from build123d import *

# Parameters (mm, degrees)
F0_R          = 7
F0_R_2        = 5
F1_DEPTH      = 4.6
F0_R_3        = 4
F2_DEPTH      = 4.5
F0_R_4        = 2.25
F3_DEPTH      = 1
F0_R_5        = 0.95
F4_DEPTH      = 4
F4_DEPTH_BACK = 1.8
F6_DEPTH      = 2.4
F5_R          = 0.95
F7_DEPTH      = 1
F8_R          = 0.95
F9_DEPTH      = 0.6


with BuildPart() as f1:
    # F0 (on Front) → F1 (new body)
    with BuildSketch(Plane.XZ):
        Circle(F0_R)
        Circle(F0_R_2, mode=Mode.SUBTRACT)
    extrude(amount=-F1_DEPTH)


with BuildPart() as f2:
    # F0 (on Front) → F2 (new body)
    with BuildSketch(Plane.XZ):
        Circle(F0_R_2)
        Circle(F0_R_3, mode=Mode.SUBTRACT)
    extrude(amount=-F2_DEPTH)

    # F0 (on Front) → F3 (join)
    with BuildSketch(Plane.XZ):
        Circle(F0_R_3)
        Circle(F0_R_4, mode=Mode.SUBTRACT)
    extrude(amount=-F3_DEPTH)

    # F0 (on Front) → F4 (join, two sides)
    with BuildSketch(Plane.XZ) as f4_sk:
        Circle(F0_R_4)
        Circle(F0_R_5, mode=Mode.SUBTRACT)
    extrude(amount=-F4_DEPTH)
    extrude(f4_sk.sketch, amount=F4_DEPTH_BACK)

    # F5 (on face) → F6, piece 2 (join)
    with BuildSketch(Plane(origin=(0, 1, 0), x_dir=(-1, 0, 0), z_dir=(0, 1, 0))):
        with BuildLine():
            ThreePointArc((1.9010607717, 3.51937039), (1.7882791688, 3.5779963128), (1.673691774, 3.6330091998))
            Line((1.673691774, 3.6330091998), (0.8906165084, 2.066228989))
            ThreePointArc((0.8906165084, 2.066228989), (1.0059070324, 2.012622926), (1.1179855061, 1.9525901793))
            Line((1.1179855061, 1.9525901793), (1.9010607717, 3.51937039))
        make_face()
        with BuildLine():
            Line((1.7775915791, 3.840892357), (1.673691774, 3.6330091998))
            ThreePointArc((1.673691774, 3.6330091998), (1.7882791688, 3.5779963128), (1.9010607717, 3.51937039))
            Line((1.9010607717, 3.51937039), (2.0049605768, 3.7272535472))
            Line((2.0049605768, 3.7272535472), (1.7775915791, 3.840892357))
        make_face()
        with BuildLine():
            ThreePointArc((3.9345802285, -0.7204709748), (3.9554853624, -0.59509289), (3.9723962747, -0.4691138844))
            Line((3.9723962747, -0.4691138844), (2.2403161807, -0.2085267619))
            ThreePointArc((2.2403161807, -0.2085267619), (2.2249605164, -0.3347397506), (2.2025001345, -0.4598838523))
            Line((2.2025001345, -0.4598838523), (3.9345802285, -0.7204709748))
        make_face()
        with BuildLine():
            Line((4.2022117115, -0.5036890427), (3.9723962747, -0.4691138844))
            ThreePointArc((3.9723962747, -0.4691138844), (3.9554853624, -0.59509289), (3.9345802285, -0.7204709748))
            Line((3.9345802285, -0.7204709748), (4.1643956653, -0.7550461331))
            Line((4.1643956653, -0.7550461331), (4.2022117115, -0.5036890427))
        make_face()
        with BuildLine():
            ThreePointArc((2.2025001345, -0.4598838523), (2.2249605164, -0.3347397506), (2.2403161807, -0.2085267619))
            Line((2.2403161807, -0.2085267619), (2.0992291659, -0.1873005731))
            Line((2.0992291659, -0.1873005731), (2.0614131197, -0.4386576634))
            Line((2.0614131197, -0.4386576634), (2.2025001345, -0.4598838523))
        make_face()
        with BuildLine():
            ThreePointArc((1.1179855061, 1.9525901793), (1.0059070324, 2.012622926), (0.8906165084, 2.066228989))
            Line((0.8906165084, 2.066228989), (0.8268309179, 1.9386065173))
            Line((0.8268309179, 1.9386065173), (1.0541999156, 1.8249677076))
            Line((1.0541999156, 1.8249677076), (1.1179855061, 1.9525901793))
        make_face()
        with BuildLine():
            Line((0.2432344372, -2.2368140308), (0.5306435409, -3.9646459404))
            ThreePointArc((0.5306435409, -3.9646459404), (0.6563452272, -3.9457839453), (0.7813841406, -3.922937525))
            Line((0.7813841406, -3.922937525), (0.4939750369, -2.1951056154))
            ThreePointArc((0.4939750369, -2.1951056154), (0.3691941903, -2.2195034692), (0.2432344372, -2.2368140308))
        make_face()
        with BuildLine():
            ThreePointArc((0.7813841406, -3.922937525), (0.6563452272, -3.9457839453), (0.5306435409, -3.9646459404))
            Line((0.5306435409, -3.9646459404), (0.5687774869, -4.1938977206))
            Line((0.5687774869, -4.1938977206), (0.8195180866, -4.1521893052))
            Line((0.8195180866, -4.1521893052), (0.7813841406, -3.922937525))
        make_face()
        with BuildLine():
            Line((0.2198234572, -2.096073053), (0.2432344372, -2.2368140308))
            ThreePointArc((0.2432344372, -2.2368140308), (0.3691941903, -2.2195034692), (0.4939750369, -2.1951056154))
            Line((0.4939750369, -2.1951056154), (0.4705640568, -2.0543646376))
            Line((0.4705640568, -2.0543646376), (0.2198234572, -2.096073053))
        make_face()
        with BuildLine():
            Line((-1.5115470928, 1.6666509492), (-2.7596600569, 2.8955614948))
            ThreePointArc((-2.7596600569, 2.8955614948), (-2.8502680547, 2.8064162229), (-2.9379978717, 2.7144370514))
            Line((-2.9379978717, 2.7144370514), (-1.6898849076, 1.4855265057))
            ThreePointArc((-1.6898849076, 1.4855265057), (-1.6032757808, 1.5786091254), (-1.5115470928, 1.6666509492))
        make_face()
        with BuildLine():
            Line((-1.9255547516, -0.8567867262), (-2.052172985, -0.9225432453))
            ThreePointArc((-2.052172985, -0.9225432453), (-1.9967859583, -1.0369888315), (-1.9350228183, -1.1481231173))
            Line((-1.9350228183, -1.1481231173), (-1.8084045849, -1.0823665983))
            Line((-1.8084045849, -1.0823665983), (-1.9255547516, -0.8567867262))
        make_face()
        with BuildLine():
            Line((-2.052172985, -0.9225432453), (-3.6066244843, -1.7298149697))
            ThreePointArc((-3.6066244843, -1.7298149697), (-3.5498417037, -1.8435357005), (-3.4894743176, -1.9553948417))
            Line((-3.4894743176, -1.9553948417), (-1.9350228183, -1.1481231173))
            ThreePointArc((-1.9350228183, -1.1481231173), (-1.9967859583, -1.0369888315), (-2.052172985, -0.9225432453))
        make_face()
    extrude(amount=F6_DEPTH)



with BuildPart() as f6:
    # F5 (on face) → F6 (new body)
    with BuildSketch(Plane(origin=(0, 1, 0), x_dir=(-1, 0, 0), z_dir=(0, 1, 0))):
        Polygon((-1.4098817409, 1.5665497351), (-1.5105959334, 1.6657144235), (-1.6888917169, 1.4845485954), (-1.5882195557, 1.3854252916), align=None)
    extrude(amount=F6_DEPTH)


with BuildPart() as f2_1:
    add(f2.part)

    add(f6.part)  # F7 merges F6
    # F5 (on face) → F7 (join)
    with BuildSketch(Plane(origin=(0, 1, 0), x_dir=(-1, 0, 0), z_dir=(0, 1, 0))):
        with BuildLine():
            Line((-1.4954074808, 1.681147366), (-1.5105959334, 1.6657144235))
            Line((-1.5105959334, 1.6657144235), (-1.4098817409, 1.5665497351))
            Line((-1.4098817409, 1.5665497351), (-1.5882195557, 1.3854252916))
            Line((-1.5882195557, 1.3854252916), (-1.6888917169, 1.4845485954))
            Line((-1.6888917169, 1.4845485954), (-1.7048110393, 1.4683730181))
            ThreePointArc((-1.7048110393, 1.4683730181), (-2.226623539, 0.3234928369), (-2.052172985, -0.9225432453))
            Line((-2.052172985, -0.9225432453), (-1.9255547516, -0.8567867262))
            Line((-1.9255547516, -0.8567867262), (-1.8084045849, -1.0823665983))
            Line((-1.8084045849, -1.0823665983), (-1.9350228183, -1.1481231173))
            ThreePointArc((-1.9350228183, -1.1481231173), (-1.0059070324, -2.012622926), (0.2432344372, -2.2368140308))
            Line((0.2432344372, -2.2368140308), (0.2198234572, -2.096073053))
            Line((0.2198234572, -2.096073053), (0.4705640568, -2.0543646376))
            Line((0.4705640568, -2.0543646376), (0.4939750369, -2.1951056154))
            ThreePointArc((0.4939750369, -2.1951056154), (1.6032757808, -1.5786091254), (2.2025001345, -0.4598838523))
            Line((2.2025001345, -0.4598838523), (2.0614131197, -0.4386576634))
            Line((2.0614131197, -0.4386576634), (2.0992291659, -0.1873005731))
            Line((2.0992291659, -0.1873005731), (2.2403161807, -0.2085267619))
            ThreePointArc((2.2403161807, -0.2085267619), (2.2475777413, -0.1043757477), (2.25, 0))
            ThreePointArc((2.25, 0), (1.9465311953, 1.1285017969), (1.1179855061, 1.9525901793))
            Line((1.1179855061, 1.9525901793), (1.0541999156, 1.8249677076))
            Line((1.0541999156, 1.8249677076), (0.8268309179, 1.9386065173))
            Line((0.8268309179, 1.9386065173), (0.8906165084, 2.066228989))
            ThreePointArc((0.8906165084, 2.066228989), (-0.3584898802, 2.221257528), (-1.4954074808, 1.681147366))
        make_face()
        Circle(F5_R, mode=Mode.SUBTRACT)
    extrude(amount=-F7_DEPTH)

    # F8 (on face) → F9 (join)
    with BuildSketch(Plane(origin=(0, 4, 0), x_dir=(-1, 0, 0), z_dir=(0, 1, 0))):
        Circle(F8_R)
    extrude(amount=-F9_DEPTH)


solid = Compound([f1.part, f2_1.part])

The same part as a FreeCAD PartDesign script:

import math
import FreeCAD as App
import Part
import Sketcher
from FreeCAD import Vector


def add_polygon(sketch, points):
    """Adds a closed chain of lines whose ends are joined by coincident constraints."""
    first, n = sketch.GeometryCount, len(points)
    for a, b in zip(points, points[1:] + points[:1]):
        sketch.addGeometry(Part.LineSegment(App.Vector(*a, 0), App.Vector(*b, 0)), False)
    for i in range(n):
        sketch.addConstraint(Sketcher.Constraint("Coincident", first + i, 2, first + (i + 1) % n, 1))

doc = App.newDocument("Part")
body = doc.addObject("PartDesign::Body", "Body")

# Sketch on XZ plane
sketch1 = body.newObject("Sketcher::SketchObject", "Sketch")
sketch1.AttachmentSupport = (doc.getObject("XZ_Plane"), [""])
sketch1.MapMode = "FlatFace"
sketch1.addGeometry([
    Part.Circle(Vector(0, 0, 0), Vector(0, 0, 1), 7),
    Part.Circle(Vector(0, 0, 0), Vector(0, 0, 1), 5),
], False)
sketch1.addConstraint([
    Sketcher.Constraint("Coincident", 0, 3, -1, 1),
    Sketcher.Constraint("Coincident", 1, 3, -1, 1),
    Sketcher.Constraint("Diameter", 0, 14.0),
    Sketcher.Constraint("Diameter", 1, 10.0),
])
pad1 = body.newObject("PartDesign::Pad", "Pad")
pad1.Profile = sketch1
pad1.Length = 4.6
pad1.Reversed = True
body2 = doc.addObject("PartDesign::Body", "Body001")

# Sketch on XZ plane
sketch2 = body2.newObject("Sketcher::SketchObject", "Sketch001")
sketch2.AttachmentSupport = (doc.getObject("XZ_Plane001"), [""])
sketch2.MapMode = "FlatFace"
sketch2.addGeometry([
    Part.Circle(Vector(0, 0, 0), Vector(0, 0, 1), 5),
    Part.Circle(Vector(0, 0, 0), Vector(0, 0, 1), 4),
], False)
sketch2.addConstraint([
    Sketcher.Constraint("Coincident", 0, 3, -1, 1),
    Sketcher.Constraint("Coincident", 1, 3, -1, 1),
    Sketcher.Constraint("Diameter", 0, 10.0),
    Sketcher.Constraint("Diameter", 1, 8.0),
])
pad2 = body2.newObject("PartDesign::Pad", "Pad001")
pad2.Profile = sketch2
pad2.Length = 4.5
pad2.Reversed = True

# Sketch on XZ plane
sketch3 = body2.newObject("Sketcher::SketchObject", "Sketch002")
sketch3.AttachmentSupport = (doc.getObject("XZ_Plane001"), [""])
sketch3.MapMode = "FlatFace"
sketch3.addGeometry([
    Part.Circle(Vector(0, 0, 0), Vector(0, 0, 1), 4),
    Part.Circle(Vector(0, 0, 0), Vector(0, 0, 1), 2.2),
], False)
sketch3.addConstraint([
    Sketcher.Constraint("Coincident", 0, 3, -1, 1),
    Sketcher.Constraint("Coincident", 1, 3, -1, 1),
    Sketcher.Constraint("Diameter", 0, 8.0),
    Sketcher.Constraint("Diameter", 1, 4.5),
])
pad3 = body2.newObject("PartDesign::Pad", "Pad002")
pad3.Profile = sketch3
pad3.Length = 1
pad3.Reversed = True

# Sketch on XZ plane
sketch4 = body2.newObject("Sketcher::SketchObject", "Sketch003")
sketch4.AttachmentSupport = (doc.getObject("XZ_Plane001"), [""])
sketch4.MapMode = "FlatFace"
sketch4.addGeometry([
    Part.Circle(Vector(0, 0, 0), Vector(0, 0, 1), 2.2),
    Part.Circle(Vector(0, 0, 0), Vector(0, 0, 1), 0.9),
], False)
sketch4.addConstraint([
    Sketcher.Constraint("Coincident", 0, 3, -1, 1),
    Sketcher.Constraint("Coincident", 1, 3, -1, 1),
    Sketcher.Constraint("Diameter", 0, 4.5),
    Sketcher.Constraint("Diameter", 1, 1.9),
])
pad4 = body2.newObject("PartDesign::Pad", "Pad003")
pad4.Profile = sketch4
pad4.Type = "TwoLengths"
pad4.Length = 4
pad4.Length2 = 1.8
pad4.Reversed = True

# Sketch on XZ plane
sketch5 = body2.newObject("Sketcher::SketchObject", "Sketch004")
sketch5.AttachmentSupport = (doc.getObject("XZ_Plane001"), [""])
sketch5.MapMode = "FlatFace"
sketch5.AttachmentOffset = App.Placement(Vector(0, 0, -1), App.Rotation())
add_polygon(sketch5, [(-1.673692, 3.633009), (-0.890617, 2.066229), (-0.826831, 1.938607), (-1.0542, 1.824968), (-1.901061, 3.51937), (-2.004961, 3.727254), (-1.777592, 3.840892)])  # lines 0-6
add_polygon(sketch5, [(-3.972396, -0.469114), (-2.240316, -0.208527), (-2.099229, -0.187301), (-2.061413, -0.438658), (-2.2025, -0.459884), (-3.93458, -0.720471), (-4.164396, -0.755046), (-4.202212, -0.503689)])  # lines 7-14
add_polygon(sketch5, [(-0.243234, -2.236814), (-0.530644, -3.964646), (-0.568777, -4.193898), (-0.819518, -4.152189), (-0.781384, -3.922938), (-0.493975, -2.195106), (-0.470564, -2.054365), (-0.219823, -2.096073)])  # lines 15-22
sketch5.addGeometry(Part.LineSegment(Vector(1.511547, 1.666651, 0), Vector(2.75966, 2.895561, 0)), False)  # 23
sketch5.addGeometry(Part.ArcOfCircle(Part.Circle(Vector(0, 0, 0), Vector(0, 0, 1), 4), math.radians(42.735061), math.radians(46.376618)), False)  # 24
sketch5.addGeometry(Part.LineSegment(Vector(2.937998, 2.714437, 0), Vector(1.689885, 1.485527, 0)), False)  # 25
sketch5.addGeometry(Part.ArcOfCircle(Part.Circle(Vector(0, 0, 0), Vector(0, 0, 1), 2.25), math.radians(41.317722), math.radians(47.793958)), False)  # 26
sketch5.addGeometry(Part.LineSegment(Vector(1.925555, -0.856787, 0), Vector(2.052173, -0.922543, 0)), False)  # 27
sketch5.addGeometry(Part.LineSegment(Vector(2.052173, -0.922543, 0), Vector(3.606624, -1.729815, 0)), False)  # 28
sketch5.addGeometry(Part.ArcOfCircle(Part.Circle(Vector(0, 0, 0), Vector(0, 0, 1), 4), math.radians(-29.264939), math.radians(-25.623382)), False)  # 29
sketch5.addGeometry(Part.LineSegment(Vector(3.489474, -1.955395, 0), Vector(1.935023, -1.148123, 0)), False)  # 30
sketch5.addGeometry(Part.LineSegment(Vector(1.935023, -1.148123, 0), Vector(1.808405, -1.082367, 0)), False)  # 31
sketch5.addGeometry(Part.LineSegment(Vector(1.808405, -1.082367, 0), Vector(1.925555, -0.856787, 0)), False)  # 32
sketch5.addConstraint([
    Sketcher.Constraint("Coincident", 23, 2, 24, 2),
    Sketcher.Constraint("Coincident", 24, 1, 25, 1),
    Sketcher.Constraint("Coincident", 25, 2, 26, 1),
    Sketcher.Constraint("Coincident", 26, 2, 23, 1),
    Sketcher.Constraint("Coincident", 27, 2, 28, 1),
    Sketcher.Constraint("Coincident", 28, 2, 29, 2),
    Sketcher.Constraint("Coincident", 29, 1, 30, 1),
    Sketcher.Constraint("Coincident", 30, 2, 31, 1),
    Sketcher.Constraint("Coincident", 31, 2, 32, 1),
    Sketcher.Constraint("Coincident", 32, 2, 27, 1),
    Sketcher.Constraint("Coincident", 24, 3, -1, 1),
    Sketcher.Constraint("Coincident", 26, 3, -1, 1),
    Sketcher.Constraint("Coincident", 29, 3, -1, 1),
    Sketcher.Constraint("Radius", 24, 4.0),
    Sketcher.Constraint("Radius", 29, 4.0),
    Sketcher.Constraint("Radius", 26, 2.25),
    Sketcher.Constraint("DistanceX", 12, 2, 14, 2, 0.191999),
    Sketcher.Constraint("DistanceY", 22, 2, 28, 2, 0.506999),
    Sketcher.Constraint("Distance", 4, 0.232402),
    Sketcher.Constraint("Distance", 6, 0.232402),
    Sketcher.Constraint("Distance", 12, 0.232402),
    Sketcher.Constraint("Distance", 14, 0.232402),
    Sketcher.Constraint("Distance", 16, 0.232402),
    Sketcher.Constraint("Distance", 18, 0.232402),
    Sketcher.Constraint("DistanceX", 2, 2, -1, 1, 1.0542),
    Sketcher.Constraint("DistanceY", 8, 2, -1, 1, 0.187301),
    Sketcher.Constraint("DistanceX", 10, 2, -1, 1, 2.2025),
    Sketcher.Constraint("DistanceX", 4, 2, 3, 2, 0.1039),
    Sketcher.Constraint("DistanceX", 5, 2, 6, 2, 0.1039),
    Sketcher.Constraint("DistanceX", 27, 2, 29, 1, 1.437301),
    Sketcher.Constraint("DistanceX", 30, 2, 28, 2, 1.671602),
    Sketcher.Constraint("DistanceY", -1, 1, 0, 2, 2.066229),
    Sketcher.Constraint("DistanceX", 1, 2, -1, 1, 0.826831),
    Sketcher.Constraint("DistanceX", 3, 2, -1, 1, 1.901061),
    Sketcher.Constraint("DistanceY", -1, 1, 3, 2, 3.51937),
    Sketcher.Constraint("DistanceX", 5, 2, -1, 1, 1.777592),
    Sketcher.Constraint("DistanceY", -1, 1, 6, 2, 3.633009),
    Sketcher.Constraint("DistanceX", 8, 2, -1, 1, 2.099229),
    Sketcher.Constraint("DistanceX", 11, 2, -1, 1, 3.93458),
    Sketcher.Constraint("DistanceY", 11, 2, -1, 1, 0.720471),
    Sketcher.Constraint("DistanceX", 13, 2, -1, 1, 4.202212),
    Sketcher.Constraint("DistanceY", 13, 2, -1, 1, 0.503689),
    Sketcher.Constraint("DistanceX", 17, 2, -1, 1, 0.819518),
    Sketcher.Constraint("DistanceY", 17, 2, -1, 1, 4.152189),
    Sketcher.Constraint("DistanceX", -1, 1, 23, 2, 2.75966),
    Sketcher.Constraint("DistanceY", -1, 1, 26, 2, 1.666651),
    Sketcher.Constraint("DistanceY", 2, 2, 1, 2, 0.113639),
    Sketcher.Constraint("DistanceY", 2, 2, 0, 2, 0.241261),
    Sketcher.Constraint("DistanceY", 9, 2, 7, 2, 0.230131),
    Sketcher.Constraint("DistanceX", 12, 2, 7, 2, 1.924079),
    Sketcher.Constraint("DistanceY", 12, 2, 7, 2, 0.546519),
    Sketcher.Constraint("DistanceY", 14, 2, 10, 2, 0.00923),
    Sketcher.Constraint("DistanceX", 9, 2, 15, 2, 1.53077),
    Sketcher.Constraint("DistanceY", 15, 2, 9, 2, 3.525988),
    Sketcher.Constraint("DistanceY", 16, 2, 15, 2, 0.229252),
    Sketcher.Constraint("DistanceX", 17, 2, 16, 2, 0.250741),
    Sketcher.Constraint("DistanceY", 16, 2, 17, 2, 0.041708),
    Sketcher.Constraint("DistanceY", 17, 2, 18, 2, 0.229252),
    Sketcher.Constraint("DistanceX", 18, 2, 19, 2, 0.287409),
    Sketcher.Constraint("DistanceY", 18, 2, 19, 2, 1.727832),
    Sketcher.Constraint("DistanceX", 19, 2, 20, 2, 0.023411),
    Sketcher.Constraint("DistanceY", 19, 2, 20, 2, 0.140741),
    Sketcher.Constraint("DistanceX", 20, 2, 21, 2, 0.250741),
    Sketcher.Constraint("DistanceY", 21, 2, 20, 2, 0.041708),
    Sketcher.Constraint("DistanceX", 22, 2, 21, 2, 0.023411),
    Sketcher.Constraint("DistanceY", 22, 2, 21, 2, 0.140741),
    Sketcher.Constraint("DistanceX", 1, 2, 24, 1, 3.764829),
    Sketcher.Constraint("DistanceY", 25, 2, 24, 1, 1.228911),
    Sketcher.Constraint("DistanceX", 25, 2, 27, 2, 0.362288),
    Sketcher.Constraint("DistanceY", 27, 2, 25, 2, 2.40807),
    Sketcher.Constraint("DistanceY", 30, 2, 27, 2, 0.22558),
    Sketcher.Constraint("DistanceX", 31, 2, 30, 2, 0.126618),
    Sketcher.Constraint("DistanceY", 29, 1, 31, 2, 0.873028),
    Sketcher.Constraint("DistanceX", 32, 2, 27, 2, 0.126618),
    Sketcher.Constraint("DistanceY", 31, 2, 32, 2, 0.22558),
    Sketcher.Constraint("Distance", 0, 1.751573),
])
pad5 = body2.newObject("PartDesign::Pad", "Pad004")
pad5.Profile = sketch5
pad5.Length = 2.4
pad5.Reversed = True
body3 = doc.addObject("PartDesign::Body", "Body002")

# Sketch on XZ plane
sketch6 = body3.newObject("Sketcher::SketchObject", "Sketch005")
sketch6.AttachmentSupport = (doc.getObject("XZ_Plane002"), [""])
sketch6.MapMode = "FlatFace"
sketch6.AttachmentOffset = App.Placement(Vector(0, 0, -1), App.Rotation())
add_polygon(sketch6, [(1.41, 1.57), (1.51, 1.67), (1.69, 1.48), (1.59, 1.39)])  # lines 0-3
sketch6.addConstraint([
    Sketcher.Constraint("Parallel", 0, 2),
    Sketcher.Constraint("Perpendicular", 2, 3),
    Sketcher.Constraint("DistanceY", 1, 2, 3, 2, 0.082001),
    Sketcher.Constraint("Distance", 0, 0.14134),
    Sketcher.Constraint("Distance", 2, 0.141281),
    Sketcher.Constraint("DistanceX", -1, 1, 1, 2, 1.688892),
    Sketcher.Constraint("DistanceY", -1, 1, 1, 2, 1.484549),
    Sketcher.Constraint("DistanceX", -1, 1, 2, 2, 1.58822),
])
pad6 = body3.newObject("PartDesign::Pad", "Pad005")
pad6.Profile = sketch6
pad6.Length = 2.4
pad6.Reversed = True
doc.recompute()

boolean = body2.newObject("PartDesign::Boolean", "Boolean")
boolean.Type = "Fuse"
boolean.addObjects([body3])

# Sketch on XZ plane
sketch7 = body2.newObject("Sketcher::SketchObject", "Sketch006")
sketch7.AttachmentSupport = (doc.getObject("XZ_Plane001"), [""])
sketch7.MapMode = "FlatFace"
sketch7.AttachmentOffset = App.Placement(Vector(0, 0, -1), App.Rotation())
sketch7.addGeometry([
    Part.LineSegment(Vector(1.495407, 1.681147, 0), Vector(1.510596, 1.665714, 0)),  # 0
    Part.LineSegment(Vector(1.510596, 1.665714, 0), Vector(1.409882, 1.56655, 0)),  # 1
    Part.LineSegment(Vector(1.409882, 1.56655, 0), Vector(1.58822, 1.385425, 0)),  # 2
    Part.LineSegment(Vector(1.58822, 1.385425, 0), Vector(1.688892, 1.484549, 0)),  # 3
    Part.LineSegment(Vector(1.688892, 1.484549, 0), Vector(1.704811, 1.468373, 0)),  # 4
    Part.ArcOfCircle(Part.Circle(Vector(0, 0, 0), Vector(0, 0, 1), 2.25), math.radians(-24.206042), math.radians(40.738692)),  # 5
    Part.LineSegment(Vector(2.052173, -0.922543, 0), Vector(1.925555, -0.856787, 0)),  # 6
    Part.LineSegment(Vector(1.925555, -0.856787, 0), Vector(1.808405, -1.082367, 0)),  # 7
    Part.LineSegment(Vector(1.808405, -1.082367, 0), Vector(1.935023, -1.148123, 0)),  # 8
    Part.ArcOfCircle(Part.Circle(Vector(0, 0, 0), Vector(0, 0, 1), 2.25), math.radians(-96.206042), math.radians(-30.682278)),  # 9
    Part.LineSegment(Vector(-0.243234, -2.236814, 0), Vector(-0.219823, -2.096073, 0)),  # 10
    Part.LineSegment(Vector(-0.219823, -2.096073, 0), Vector(-0.470564, -2.054365, 0)),  # 11
    Part.LineSegment(Vector(-0.470564, -2.054365, 0), Vector(-0.493975, -2.195106, 0)),  # 12
    Part.ArcOfCircle(Part.Circle(Vector(0, 0, 0), Vector(0, 0, 1), 2.25), math.radians(-168.206042), math.radians(-102.682278)),  # 13
    Part.LineSegment(Vector(-2.2025, -0.459884, 0), Vector(-2.061413, -0.438658, 0)),  # 14
    Part.LineSegment(Vector(-2.061413, -0.438658, 0), Vector(-2.099229, -0.187301, 0)),  # 15
    Part.LineSegment(Vector(-2.099229, -0.187301, 0), Vector(-2.240316, -0.208527, 0)),  # 16
    Part.ArcOfCircle(Part.Circle(Vector(0, 0, 0), Vector(0, 0, 1), 2.25), math.radians(-180), math.radians(-174.682278)),  # 17
    Part.ArcOfCircle(Part.Circle(Vector(0, 0, 0), Vector(0, 0, 1), 2.25), math.radians(119.793958), math.radians(180)),  # 18
    Part.LineSegment(Vector(-1.117986, 1.95259, 0), Vector(-1.0542, 1.824968, 0)),  # 19
    Part.LineSegment(Vector(-1.0542, 1.824968, 0), Vector(-0.826831, 1.938607, 0)),  # 20
    Part.LineSegment(Vector(-0.826831, 1.938607, 0), Vector(-0.890617, 2.066229, 0)),  # 21
    Part.ArcOfCircle(Part.Circle(Vector(0, 0, 0), Vector(0, 0, 1), 2.25), math.radians(48.346395), math.radians(113.317722)),  # 22
    Part.Circle(Vector(0, 0, 0), Vector(0, 0, 1), 0.95),  # 23
], False)
sketch7.addConstraint([
    Sketcher.Constraint("Coincident", 0, 2, 1, 1),
    Sketcher.Constraint("Coincident", 1, 2, 2, 1),
    Sketcher.Constraint("Coincident", 2, 2, 3, 1),
    Sketcher.Constraint("Coincident", 3, 2, 4, 1),
    Sketcher.Constraint("Coincident", 4, 2, 5, 2),
    Sketcher.Constraint("Coincident", 5, 1, 6, 1),
    Sketcher.Constraint("Coincident", 6, 2, 7, 1),
    Sketcher.Constraint("Coincident", 7, 2, 8, 1),
    Sketcher.Constraint("Coincident", 8, 2, 9, 2),
    Sketcher.Constraint("Coincident", 9, 1, 10, 1),
    Sketcher.Constraint("Coincident", 10, 2, 11, 1),
    Sketcher.Constraint("Coincident", 11, 2, 12, 1),
    Sketcher.Constraint("Coincident", 12, 2, 13, 2),
    Sketcher.Constraint("Coincident", 13, 1, 14, 1),
    Sketcher.Constraint("Coincident", 14, 2, 15, 1),
    Sketcher.Constraint("Coincident", 15, 2, 16, 1),
    Sketcher.Constraint("Coincident", 16, 2, 17, 2),
    Sketcher.Constraint("Coincident", 17, 1, 18, 2),
    Sketcher.Constraint("Coincident", 18, 1, 19, 1),
    Sketcher.Constraint("Coincident", 19, 2, 20, 1),
    Sketcher.Constraint("Coincident", 20, 2, 21, 1),
    Sketcher.Constraint("Coincident", 21, 2, 22, 2),
    Sketcher.Constraint("Coincident", 22, 1, 0, 1),
    Sketcher.Constraint("Coincident", 5, 3, -1, 1),
    Sketcher.Constraint("Coincident", 9, 3, -1, 1),
    Sketcher.Constraint("Coincident", 13, 3, -1, 1),
    Sketcher.Constraint("Coincident", 17, 3, -1, 1),
    Sketcher.Constraint("Coincident", 18, 3, -1, 1),
    Sketcher.Constraint("Coincident", 22, 3, -1, 1),
    Sketcher.Constraint("Coincident", 23, 3, -1, 1),
    Sketcher.Constraint("PointOnObject", 17, 1, -1),
    Sketcher.Constraint("Diameter", 23, 1.9),
    Sketcher.Constraint("Radius", 5, 2.25),
    Sketcher.Constraint("Radius", 9, 2.25),
    Sketcher.Constraint("Radius", 13, 2.25),
    Sketcher.Constraint("Radius", 17, 2.25),
    Sketcher.Constraint("Radius", 22, 2.25),
    Sketcher.Constraint("DistanceY", 3, 2, 1, 2, 0.082001),
    Sketcher.Constraint("DistanceX", 13, 1, -1, 1, 2.2025),
    Sketcher.Constraint("DistanceY", 15, 2, -1, 1, 0.187301),
    Sketcher.Constraint("DistanceX", 19, 2, -1, 1, 1.0542),
    Sketcher.Constraint("DistanceY", 3, 2, 22, 1, 0.196599),
    Sketcher.Constraint("Distance", 1, 0.14134),
    Sketcher.Constraint("Distance", 3, 0.141281),
    Sketcher.Constraint("DistanceX", -1, 1, 1, 2, 1.409882),
    Sketcher.Constraint("DistanceY", -1, 1, 1, 2, 1.56655),
    Sketcher.Constraint("DistanceX", -1, 1, 2, 2, 1.58822),
    Sketcher.Constraint("DistanceX", -1, 1, 3, 2, 1.688892),
    Sketcher.Constraint("DistanceX", -1, 1, 4, 2, 1.704811),
    Sketcher.Constraint("DistanceX", 15, 2, -1, 1, 2.099229),
    Sketcher.Constraint("DistanceY", -1, 1, 18, 1, 1.95259),
    Sketcher.Constraint("DistanceX", 20, 2, -1, 1, 0.826831),
    Sketcher.Constraint("DistanceY", -1, 1, 21, 2, 2.066229),
    Sketcher.Constraint("DistanceY", 2, 2, 0, 2, 0.280289),
    Sketcher.Constraint("DistanceX", 6, 2, 5, 1, 0.126618),
    Sketcher.Constraint("DistanceX", 7, 2, 6, 2, 0.11715),
    Sketcher.Constraint("DistanceY", 7, 2, 6, 2, 0.22558),
    Sketcher.Constraint("DistanceX", 7, 2, 8, 2, 0.126618),
    Sketcher.Constraint("DistanceY", 8, 2, 5, 1, 0.22558),
    Sketcher.Constraint("DistanceX", 9, 1, 10, 2, 0.023411),
    Sketcher.Constraint("DistanceY", 9, 1, 10, 2, 0.140741),
    Sketcher.Constraint("DistanceX", 11, 2, 10, 2, 0.250741),
    Sketcher.Constraint("DistanceY", 10, 2, 11, 2, 0.041708),
    Sketcher.Constraint("DistanceX", 12, 2, 11, 2, 0.023411),
    Sketcher.Constraint("DistanceY", 12, 2, 11, 2, 0.140741),
    Sketcher.Constraint("DistanceY", 14, 2, 16, 2, 0.230131),
    Sketcher.Constraint("DistanceY", 19, 2, 20, 2, 0.113639),
    Sketcher.Constraint("DistanceY", 19, 2, 21, 2, 0.241261),
    Sketcher.Constraint("Distance", 6, 0.142675),
    Sketcher.Constraint("Distance", 14, 0.142675),
    Sketcher.Constraint("Distance", 15, 0.254186),
])
pad7 = body2.newObject("PartDesign::Pad", "Pad006")
pad7.Profile = sketch7
pad7.Length = 1

# Sketch on XZ plane
sketch8 = body2.newObject("Sketcher::SketchObject", "Sketch007")
sketch8.AttachmentSupport = (doc.getObject("XZ_Plane001"), [""])
sketch8.MapMode = "FlatFace"
sketch8.AttachmentOffset = App.Placement(Vector(0, 0, -4), App.Rotation())
sketch8.addGeometry(Part.Circle(Vector(0, 0, 0), Vector(0, 0, 1), 0.9), False)
sketch8.addConstraint([
    Sketcher.Constraint("Coincident", 0, 3, -1, 1),
    Sketcher.Constraint("Diameter", 0, 1.9),
])
pad8 = body2.newObject("PartDesign::Pad", "Pad007")
pad8.Profile = sketch8
pad8.Length = 0.6

doc.recompute()
